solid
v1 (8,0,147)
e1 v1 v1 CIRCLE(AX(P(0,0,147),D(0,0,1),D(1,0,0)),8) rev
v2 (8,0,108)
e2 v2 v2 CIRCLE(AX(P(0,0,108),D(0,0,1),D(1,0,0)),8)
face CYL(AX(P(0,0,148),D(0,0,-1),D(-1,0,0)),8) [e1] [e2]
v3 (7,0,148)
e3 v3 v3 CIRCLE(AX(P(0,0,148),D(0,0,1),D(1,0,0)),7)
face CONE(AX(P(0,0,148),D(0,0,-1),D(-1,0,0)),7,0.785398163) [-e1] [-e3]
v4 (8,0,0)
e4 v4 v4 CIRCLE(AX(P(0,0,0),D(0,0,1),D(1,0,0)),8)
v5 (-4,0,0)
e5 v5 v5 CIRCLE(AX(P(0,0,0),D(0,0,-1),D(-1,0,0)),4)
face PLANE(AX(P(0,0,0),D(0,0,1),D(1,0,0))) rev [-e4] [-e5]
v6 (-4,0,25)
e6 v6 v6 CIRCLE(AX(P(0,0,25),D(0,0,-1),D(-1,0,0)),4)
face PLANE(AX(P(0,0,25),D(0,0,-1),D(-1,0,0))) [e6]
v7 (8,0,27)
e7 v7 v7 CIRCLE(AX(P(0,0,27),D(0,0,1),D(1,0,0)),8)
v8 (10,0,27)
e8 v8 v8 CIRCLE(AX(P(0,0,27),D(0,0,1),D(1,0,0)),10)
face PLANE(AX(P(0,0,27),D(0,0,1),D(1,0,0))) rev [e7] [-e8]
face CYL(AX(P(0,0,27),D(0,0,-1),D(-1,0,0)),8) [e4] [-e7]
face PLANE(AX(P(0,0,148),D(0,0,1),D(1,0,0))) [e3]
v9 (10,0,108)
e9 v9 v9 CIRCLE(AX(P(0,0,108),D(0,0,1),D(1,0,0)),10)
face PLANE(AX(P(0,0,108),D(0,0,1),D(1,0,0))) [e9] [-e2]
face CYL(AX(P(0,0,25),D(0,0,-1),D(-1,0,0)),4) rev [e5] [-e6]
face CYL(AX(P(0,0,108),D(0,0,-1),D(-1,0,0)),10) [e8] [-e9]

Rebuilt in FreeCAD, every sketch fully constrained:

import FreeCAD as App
import Part
import Sketcher

V = App.Vector


def edges_at(feature, points):
    """Names of the edges that pass closest to the given points."""
    edges = feature.Shape.Edges
    near = lambda p: min(range(len(edges)), key=lambda i: edges[i].distToShape(Part.Vertex(*p))[0])
    return sorted({f"Edge{near(p) + 1}" for p in points})

doc = App.newDocument("Part")
body = doc.addObject("PartDesign::Body", "Body")

sketch1 = body.newObject("Sketcher::SketchObject", "Sketch")
sketch1.AttachmentSupport = (doc.getObject("XY_Plane"), [""])
sketch1.MapMode = "FlatFace"
sketch1.addGeometry(Part.Circle(V(0, 0, 0), V(0, 0, 1), 8), False)
sketch1.addConstraint(Sketcher.Constraint("Coincident", 0, 3, -1, 1))
sketch1.addConstraint(Sketcher.Constraint("Diameter", 0, 16.0))
pad1 = body.newObject("PartDesign::Pad", "Pad")
pad1.Profile = sketch1
pad1.Length = 27

sketch2 = body.newObject("Sketcher::SketchObject", "Sketch001")
sketch2.AttachmentSupport = (doc.getObject("XY_Plane"), [""])
sketch2.MapMode = "FlatFace"
sketch2.AttachmentOffset = App.Placement(V(0, 0, 27), App.Rotation())
sketch2.addGeometry(Part.Circle(V(0, 0, 0), V(0, 0, 1), 10), False)
sketch2.addConstraint(Sketcher.Constraint("Coincident", 0, 3, -1, 1))
sketch2.addConstraint(Sketcher.Constraint("Diameter", 0, 20.0))
pad2 = body.newObject("PartDesign::Pad", "Pad001")
pad2.Profile = sketch2
pad2.Length = 81

sketch3 = body.newObject("Sketcher::SketchObject", "Sketch002")
sketch3.AttachmentSupport = (doc.getObject("XY_Plane"), [""])
sketch3.MapMode = "FlatFace"
sketch3.AttachmentOffset = App.Placement(V(0, 0, 108), App.Rotation())
sketch3.addGeometry(Part.Circle(V(0, 0, 0), V(0, 0, 1), 8), False)
sketch3.addConstraint(Sketcher.Constraint("Coincident", 0, 3, -1, 1))
sketch3.addConstraint(Sketcher.Constraint("Diameter", 0, 16.0))
pad3 = body.newObject("PartDesign::Pad", "Pad002")
pad3.Profile = sketch3
pad3.Length = 40
doc.recompute()

chamfer = body.newObject("PartDesign::Chamfer", "Chamfer")
chamfer.Base = (pad3, edges_at(pad3, [(-8, 0, 148)]))
chamfer.Size = 1

sketch4 = body.newObject("Sketcher::SketchObject", "Sketch003")
sketch4.AttachmentSupport = (doc.getObject("XY_Plane"), [""])
sketch4.MapMode = "FlatFace"
sketch4.addGeometry(Part.Circle(V(0, 0, 0), V(0, 0, 1), 4), False)
sketch4.addConstraint(Sketcher.Constraint("Coincident", 0, 3, -1, 1))
sketch4.addConstraint(Sketcher.Constraint("Diameter", 0, 8.0))
pocket1 = body.newObject("PartDesign::Pocket", "Pocket")
pocket1.Profile = sketch4
pocket1.Length = 25
pocket1.Reversed = True

doc.recompute()
